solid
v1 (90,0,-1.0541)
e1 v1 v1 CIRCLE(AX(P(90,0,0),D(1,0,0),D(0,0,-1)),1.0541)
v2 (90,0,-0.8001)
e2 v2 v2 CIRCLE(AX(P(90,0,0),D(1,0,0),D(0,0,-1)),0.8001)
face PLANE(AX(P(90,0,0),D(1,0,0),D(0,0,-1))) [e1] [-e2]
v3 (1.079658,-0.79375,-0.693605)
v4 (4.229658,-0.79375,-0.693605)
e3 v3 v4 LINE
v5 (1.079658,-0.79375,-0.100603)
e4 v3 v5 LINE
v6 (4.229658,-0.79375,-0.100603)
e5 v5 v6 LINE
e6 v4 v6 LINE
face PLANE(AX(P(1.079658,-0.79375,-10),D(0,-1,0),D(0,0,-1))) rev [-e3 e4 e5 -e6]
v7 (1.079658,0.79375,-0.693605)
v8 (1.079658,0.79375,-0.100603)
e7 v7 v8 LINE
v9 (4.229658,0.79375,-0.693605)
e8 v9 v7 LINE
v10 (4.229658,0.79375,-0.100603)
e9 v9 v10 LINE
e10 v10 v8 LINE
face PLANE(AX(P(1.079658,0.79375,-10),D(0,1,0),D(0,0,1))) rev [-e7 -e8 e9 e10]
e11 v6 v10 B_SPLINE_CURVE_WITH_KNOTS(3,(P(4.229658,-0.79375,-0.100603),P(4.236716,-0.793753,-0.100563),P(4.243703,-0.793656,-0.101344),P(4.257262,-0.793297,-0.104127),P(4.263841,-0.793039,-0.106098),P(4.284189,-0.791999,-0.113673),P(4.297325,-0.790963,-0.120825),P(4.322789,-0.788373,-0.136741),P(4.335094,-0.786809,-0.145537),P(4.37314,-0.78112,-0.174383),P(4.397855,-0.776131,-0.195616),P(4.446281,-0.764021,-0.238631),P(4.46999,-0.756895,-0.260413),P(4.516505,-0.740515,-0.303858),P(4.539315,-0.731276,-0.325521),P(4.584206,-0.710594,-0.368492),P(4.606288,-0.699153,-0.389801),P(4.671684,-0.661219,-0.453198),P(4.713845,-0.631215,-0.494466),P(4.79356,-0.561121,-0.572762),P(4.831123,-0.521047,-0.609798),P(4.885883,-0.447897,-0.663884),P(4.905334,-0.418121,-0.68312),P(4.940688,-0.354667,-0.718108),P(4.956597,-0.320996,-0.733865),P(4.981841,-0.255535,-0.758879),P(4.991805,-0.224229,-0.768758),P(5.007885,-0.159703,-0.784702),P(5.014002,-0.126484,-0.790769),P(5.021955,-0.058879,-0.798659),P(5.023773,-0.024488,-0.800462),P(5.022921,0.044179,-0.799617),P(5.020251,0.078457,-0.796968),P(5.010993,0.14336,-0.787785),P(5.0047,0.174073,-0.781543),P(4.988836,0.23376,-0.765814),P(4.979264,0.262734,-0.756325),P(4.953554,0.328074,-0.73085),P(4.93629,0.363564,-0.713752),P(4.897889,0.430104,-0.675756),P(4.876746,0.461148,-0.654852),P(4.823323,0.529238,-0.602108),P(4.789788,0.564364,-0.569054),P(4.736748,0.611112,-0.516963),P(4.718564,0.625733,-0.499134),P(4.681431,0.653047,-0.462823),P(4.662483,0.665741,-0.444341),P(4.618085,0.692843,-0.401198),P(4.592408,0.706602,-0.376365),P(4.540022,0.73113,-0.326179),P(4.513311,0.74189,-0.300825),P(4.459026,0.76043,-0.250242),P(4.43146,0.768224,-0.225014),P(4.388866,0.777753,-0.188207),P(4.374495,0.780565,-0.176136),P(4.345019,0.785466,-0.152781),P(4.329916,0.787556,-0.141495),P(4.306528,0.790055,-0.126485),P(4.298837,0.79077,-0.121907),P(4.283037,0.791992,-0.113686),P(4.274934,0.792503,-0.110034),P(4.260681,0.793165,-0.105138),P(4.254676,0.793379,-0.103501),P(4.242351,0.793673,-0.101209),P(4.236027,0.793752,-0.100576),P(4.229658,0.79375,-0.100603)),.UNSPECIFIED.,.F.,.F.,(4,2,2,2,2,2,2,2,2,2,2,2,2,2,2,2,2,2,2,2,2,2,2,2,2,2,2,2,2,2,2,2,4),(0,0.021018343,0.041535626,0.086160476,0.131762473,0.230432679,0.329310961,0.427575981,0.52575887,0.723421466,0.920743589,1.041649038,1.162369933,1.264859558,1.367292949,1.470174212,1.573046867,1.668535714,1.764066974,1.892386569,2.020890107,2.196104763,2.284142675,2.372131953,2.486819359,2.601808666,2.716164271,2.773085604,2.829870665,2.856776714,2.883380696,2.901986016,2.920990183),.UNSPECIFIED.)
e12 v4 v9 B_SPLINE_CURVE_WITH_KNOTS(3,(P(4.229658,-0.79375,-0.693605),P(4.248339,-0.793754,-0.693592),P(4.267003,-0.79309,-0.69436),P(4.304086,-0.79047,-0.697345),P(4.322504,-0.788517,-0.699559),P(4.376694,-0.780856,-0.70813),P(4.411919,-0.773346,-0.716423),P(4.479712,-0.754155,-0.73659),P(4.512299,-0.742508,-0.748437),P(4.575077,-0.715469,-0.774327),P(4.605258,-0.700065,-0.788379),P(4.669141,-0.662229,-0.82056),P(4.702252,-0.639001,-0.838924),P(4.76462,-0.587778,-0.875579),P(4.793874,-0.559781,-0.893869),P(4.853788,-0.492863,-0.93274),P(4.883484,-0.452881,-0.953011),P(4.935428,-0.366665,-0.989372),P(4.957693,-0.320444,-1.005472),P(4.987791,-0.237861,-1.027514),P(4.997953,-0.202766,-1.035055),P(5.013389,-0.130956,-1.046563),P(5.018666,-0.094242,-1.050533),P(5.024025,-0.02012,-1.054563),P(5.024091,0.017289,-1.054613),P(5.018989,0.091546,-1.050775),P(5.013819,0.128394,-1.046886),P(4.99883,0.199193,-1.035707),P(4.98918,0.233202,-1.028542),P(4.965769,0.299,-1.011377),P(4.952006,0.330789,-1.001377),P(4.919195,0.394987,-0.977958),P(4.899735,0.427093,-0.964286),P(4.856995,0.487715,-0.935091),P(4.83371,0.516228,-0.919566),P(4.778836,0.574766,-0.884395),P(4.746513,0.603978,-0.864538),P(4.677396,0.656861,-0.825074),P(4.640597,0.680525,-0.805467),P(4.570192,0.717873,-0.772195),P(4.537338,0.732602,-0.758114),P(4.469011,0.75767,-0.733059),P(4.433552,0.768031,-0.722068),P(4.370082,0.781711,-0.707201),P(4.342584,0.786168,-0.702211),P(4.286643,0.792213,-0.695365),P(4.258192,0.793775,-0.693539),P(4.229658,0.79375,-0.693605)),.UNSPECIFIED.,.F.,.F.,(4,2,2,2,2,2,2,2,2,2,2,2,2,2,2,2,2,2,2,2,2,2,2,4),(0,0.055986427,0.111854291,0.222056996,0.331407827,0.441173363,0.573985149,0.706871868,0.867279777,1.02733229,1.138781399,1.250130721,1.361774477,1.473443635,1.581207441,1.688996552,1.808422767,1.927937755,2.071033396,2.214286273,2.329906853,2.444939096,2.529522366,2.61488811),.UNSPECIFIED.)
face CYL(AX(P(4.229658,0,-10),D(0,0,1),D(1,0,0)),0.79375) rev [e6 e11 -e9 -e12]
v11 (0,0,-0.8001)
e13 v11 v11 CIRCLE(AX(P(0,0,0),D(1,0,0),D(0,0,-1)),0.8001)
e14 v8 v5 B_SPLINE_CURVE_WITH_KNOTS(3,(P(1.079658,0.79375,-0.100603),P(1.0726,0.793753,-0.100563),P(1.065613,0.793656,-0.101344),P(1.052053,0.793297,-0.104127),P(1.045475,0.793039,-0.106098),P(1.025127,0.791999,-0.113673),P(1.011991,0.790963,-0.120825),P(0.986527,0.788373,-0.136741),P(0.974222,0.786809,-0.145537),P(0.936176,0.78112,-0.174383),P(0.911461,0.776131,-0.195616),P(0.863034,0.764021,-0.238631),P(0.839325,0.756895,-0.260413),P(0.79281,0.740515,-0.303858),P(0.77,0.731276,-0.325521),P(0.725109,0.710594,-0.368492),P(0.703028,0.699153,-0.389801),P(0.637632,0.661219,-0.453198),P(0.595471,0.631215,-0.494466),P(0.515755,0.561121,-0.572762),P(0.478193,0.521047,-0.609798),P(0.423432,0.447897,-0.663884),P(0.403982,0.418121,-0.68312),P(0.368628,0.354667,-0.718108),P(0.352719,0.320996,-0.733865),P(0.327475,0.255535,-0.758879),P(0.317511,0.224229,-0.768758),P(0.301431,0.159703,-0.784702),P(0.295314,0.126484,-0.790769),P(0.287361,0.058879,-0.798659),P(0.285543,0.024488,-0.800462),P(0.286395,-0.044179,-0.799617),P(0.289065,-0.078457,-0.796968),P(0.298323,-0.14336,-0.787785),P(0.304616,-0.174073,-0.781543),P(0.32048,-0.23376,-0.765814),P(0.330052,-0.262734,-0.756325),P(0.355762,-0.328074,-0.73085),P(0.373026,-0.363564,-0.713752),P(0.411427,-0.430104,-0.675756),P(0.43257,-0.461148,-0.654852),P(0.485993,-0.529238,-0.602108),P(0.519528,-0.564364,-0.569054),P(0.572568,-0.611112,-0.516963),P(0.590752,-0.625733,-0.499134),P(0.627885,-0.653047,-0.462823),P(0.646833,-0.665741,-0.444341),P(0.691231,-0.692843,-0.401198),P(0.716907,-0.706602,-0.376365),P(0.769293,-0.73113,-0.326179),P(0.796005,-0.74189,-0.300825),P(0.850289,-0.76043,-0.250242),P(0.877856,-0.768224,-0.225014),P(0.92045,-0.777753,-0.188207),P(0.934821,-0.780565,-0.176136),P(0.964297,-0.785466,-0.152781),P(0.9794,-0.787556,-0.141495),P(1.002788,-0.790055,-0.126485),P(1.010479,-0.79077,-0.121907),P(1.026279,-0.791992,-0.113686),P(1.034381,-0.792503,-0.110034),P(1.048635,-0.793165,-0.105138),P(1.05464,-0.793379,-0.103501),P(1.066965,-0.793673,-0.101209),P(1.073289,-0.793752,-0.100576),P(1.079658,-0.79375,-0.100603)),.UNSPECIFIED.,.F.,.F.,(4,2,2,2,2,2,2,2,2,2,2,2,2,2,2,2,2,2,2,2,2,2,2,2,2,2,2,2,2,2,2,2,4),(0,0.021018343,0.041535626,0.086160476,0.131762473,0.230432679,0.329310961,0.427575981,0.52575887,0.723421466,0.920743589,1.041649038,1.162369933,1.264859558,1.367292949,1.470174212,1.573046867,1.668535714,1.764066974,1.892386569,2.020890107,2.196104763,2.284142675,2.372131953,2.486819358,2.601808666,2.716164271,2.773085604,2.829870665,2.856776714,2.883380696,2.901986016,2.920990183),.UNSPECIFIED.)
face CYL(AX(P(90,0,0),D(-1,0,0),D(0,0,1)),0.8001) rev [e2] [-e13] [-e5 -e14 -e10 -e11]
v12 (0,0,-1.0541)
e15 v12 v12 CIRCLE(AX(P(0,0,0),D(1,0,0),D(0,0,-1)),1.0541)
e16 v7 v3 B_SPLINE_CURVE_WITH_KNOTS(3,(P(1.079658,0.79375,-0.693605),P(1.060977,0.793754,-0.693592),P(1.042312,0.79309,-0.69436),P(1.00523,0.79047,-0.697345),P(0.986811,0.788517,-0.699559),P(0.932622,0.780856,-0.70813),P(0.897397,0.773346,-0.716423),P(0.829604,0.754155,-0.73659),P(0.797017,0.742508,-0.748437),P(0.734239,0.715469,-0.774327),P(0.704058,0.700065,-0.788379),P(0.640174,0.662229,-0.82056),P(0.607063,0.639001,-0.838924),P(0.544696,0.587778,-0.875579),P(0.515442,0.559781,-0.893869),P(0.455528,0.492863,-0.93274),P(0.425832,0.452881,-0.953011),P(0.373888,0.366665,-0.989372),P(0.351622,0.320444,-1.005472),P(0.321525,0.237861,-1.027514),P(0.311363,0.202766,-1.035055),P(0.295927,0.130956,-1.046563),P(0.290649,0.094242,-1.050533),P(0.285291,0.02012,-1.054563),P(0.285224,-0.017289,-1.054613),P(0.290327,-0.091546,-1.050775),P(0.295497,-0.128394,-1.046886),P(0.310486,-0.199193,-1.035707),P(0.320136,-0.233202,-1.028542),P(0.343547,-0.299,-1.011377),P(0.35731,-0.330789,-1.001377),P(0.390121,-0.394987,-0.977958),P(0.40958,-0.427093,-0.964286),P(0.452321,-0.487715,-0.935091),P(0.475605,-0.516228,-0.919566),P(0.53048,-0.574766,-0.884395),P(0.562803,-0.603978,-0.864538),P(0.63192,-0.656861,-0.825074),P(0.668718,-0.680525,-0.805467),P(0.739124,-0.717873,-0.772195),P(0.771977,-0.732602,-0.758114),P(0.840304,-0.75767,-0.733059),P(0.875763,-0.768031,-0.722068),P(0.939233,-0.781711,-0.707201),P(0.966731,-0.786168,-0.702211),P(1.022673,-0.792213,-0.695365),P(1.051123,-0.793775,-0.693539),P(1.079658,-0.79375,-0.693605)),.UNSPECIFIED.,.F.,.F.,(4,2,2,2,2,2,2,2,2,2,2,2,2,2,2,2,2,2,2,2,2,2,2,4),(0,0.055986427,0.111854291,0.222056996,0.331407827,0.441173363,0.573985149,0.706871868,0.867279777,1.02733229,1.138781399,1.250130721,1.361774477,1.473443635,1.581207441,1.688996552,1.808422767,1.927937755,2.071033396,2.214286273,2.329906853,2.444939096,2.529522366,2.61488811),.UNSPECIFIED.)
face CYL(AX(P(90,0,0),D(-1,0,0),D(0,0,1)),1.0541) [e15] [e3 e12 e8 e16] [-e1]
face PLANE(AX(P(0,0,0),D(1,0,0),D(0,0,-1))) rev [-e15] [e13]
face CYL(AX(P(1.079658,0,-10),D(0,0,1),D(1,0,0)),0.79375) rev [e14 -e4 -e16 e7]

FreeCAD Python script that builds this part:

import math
import FreeCAD as App
import Part
import Sketcher

V = App.Vector
Q = App.Units.Quantity

doc = App.newDocument("Part")
body = doc.addObject("PartDesign::Body", "Body")

# Sketch on YZ plane
sketch1 = body.newObject("Sketcher::SketchObject", "Sketch")
sketch1.AttachmentSupport = (doc.getObject("YZ_Plane"), [""])
sketch1.MapMode = "FlatFace"
sketch1.addGeometry([
    Part.Circle(V(0, 0, 0), V(0, 0, 1), 1.1),
    Part.Circle(V(0, 0, 0), V(0, 0, 1), 0.8),
], False)
sketch1.addConstraint([
    Sketcher.Constraint("Coincident", 0, 3, -1, 1),
    Sketcher.Constraint("Coincident", 1, 3, -1, 1),
    Sketcher.Constraint("Diameter", 0, Q("0.083 in")),
    Sketcher.Constraint("Diameter", 1, Q("0.063 in")),
])
pad1 = body.newObject("PartDesign::Pad", "Pad")
pad1.Profile = sketch1
pad1.Length = 90

# Sketch on XY plane
sketch2 = body.newObject("Sketcher::SketchObject", "Sketch001")
sketch2.AttachmentSupport = (doc.getObject("XY_Plane"), [""])
sketch2.MapMode = "FlatFace"
sketch2.addGeometry([
    Part.LineSegment(V(4.2, 0.8, 0), V(1.1, 0.8, 0)),
    Part.ArcOfCircle(Part.Circle(V(1.1, 0, 0), V(0, 0, 1), 0.8), math.radians(90), math.radians(270)),
    Part.LineSegment(V(1.1, -0.8, 0), V(4.2, -0.8, 0)),
    Part.ArcOfCircle(Part.Circle(V(4.2, 0, 0), V(0, 0, 1), 0.8), math.radians(-90), math.radians(90)),
], False)
sketch2.addConstraint([
    Sketcher.Constraint("Tangent", 0, 2, 1, 1),
    Sketcher.Constraint("Tangent", 1, 2, 2, 1),
    Sketcher.Constraint("Tangent", 2, 2, 3, 1),
    Sketcher.Constraint("Tangent", 3, 2, 0, 1),
    Sketcher.Constraint("Horizontal", 0),
    Sketcher.Constraint("Horizontal", 2),
    Sketcher.Constraint("PointOnObject", 1, 3, -1),
    Sketcher.Constraint("Radius", 1, Q("0.03125 in")),
    Sketcher.Constraint("DistanceX", 0, 2, 0, 1, 3.15),
    Sketcher.Constraint("DistanceX", -1, 1, 1, 3, 1.079658),
])
pocket1 = body.newObject("PartDesign::Pocket", "Pocket")
pocket1.Profile = sketch2
pocket1.Length = 10

doc.recompute()
